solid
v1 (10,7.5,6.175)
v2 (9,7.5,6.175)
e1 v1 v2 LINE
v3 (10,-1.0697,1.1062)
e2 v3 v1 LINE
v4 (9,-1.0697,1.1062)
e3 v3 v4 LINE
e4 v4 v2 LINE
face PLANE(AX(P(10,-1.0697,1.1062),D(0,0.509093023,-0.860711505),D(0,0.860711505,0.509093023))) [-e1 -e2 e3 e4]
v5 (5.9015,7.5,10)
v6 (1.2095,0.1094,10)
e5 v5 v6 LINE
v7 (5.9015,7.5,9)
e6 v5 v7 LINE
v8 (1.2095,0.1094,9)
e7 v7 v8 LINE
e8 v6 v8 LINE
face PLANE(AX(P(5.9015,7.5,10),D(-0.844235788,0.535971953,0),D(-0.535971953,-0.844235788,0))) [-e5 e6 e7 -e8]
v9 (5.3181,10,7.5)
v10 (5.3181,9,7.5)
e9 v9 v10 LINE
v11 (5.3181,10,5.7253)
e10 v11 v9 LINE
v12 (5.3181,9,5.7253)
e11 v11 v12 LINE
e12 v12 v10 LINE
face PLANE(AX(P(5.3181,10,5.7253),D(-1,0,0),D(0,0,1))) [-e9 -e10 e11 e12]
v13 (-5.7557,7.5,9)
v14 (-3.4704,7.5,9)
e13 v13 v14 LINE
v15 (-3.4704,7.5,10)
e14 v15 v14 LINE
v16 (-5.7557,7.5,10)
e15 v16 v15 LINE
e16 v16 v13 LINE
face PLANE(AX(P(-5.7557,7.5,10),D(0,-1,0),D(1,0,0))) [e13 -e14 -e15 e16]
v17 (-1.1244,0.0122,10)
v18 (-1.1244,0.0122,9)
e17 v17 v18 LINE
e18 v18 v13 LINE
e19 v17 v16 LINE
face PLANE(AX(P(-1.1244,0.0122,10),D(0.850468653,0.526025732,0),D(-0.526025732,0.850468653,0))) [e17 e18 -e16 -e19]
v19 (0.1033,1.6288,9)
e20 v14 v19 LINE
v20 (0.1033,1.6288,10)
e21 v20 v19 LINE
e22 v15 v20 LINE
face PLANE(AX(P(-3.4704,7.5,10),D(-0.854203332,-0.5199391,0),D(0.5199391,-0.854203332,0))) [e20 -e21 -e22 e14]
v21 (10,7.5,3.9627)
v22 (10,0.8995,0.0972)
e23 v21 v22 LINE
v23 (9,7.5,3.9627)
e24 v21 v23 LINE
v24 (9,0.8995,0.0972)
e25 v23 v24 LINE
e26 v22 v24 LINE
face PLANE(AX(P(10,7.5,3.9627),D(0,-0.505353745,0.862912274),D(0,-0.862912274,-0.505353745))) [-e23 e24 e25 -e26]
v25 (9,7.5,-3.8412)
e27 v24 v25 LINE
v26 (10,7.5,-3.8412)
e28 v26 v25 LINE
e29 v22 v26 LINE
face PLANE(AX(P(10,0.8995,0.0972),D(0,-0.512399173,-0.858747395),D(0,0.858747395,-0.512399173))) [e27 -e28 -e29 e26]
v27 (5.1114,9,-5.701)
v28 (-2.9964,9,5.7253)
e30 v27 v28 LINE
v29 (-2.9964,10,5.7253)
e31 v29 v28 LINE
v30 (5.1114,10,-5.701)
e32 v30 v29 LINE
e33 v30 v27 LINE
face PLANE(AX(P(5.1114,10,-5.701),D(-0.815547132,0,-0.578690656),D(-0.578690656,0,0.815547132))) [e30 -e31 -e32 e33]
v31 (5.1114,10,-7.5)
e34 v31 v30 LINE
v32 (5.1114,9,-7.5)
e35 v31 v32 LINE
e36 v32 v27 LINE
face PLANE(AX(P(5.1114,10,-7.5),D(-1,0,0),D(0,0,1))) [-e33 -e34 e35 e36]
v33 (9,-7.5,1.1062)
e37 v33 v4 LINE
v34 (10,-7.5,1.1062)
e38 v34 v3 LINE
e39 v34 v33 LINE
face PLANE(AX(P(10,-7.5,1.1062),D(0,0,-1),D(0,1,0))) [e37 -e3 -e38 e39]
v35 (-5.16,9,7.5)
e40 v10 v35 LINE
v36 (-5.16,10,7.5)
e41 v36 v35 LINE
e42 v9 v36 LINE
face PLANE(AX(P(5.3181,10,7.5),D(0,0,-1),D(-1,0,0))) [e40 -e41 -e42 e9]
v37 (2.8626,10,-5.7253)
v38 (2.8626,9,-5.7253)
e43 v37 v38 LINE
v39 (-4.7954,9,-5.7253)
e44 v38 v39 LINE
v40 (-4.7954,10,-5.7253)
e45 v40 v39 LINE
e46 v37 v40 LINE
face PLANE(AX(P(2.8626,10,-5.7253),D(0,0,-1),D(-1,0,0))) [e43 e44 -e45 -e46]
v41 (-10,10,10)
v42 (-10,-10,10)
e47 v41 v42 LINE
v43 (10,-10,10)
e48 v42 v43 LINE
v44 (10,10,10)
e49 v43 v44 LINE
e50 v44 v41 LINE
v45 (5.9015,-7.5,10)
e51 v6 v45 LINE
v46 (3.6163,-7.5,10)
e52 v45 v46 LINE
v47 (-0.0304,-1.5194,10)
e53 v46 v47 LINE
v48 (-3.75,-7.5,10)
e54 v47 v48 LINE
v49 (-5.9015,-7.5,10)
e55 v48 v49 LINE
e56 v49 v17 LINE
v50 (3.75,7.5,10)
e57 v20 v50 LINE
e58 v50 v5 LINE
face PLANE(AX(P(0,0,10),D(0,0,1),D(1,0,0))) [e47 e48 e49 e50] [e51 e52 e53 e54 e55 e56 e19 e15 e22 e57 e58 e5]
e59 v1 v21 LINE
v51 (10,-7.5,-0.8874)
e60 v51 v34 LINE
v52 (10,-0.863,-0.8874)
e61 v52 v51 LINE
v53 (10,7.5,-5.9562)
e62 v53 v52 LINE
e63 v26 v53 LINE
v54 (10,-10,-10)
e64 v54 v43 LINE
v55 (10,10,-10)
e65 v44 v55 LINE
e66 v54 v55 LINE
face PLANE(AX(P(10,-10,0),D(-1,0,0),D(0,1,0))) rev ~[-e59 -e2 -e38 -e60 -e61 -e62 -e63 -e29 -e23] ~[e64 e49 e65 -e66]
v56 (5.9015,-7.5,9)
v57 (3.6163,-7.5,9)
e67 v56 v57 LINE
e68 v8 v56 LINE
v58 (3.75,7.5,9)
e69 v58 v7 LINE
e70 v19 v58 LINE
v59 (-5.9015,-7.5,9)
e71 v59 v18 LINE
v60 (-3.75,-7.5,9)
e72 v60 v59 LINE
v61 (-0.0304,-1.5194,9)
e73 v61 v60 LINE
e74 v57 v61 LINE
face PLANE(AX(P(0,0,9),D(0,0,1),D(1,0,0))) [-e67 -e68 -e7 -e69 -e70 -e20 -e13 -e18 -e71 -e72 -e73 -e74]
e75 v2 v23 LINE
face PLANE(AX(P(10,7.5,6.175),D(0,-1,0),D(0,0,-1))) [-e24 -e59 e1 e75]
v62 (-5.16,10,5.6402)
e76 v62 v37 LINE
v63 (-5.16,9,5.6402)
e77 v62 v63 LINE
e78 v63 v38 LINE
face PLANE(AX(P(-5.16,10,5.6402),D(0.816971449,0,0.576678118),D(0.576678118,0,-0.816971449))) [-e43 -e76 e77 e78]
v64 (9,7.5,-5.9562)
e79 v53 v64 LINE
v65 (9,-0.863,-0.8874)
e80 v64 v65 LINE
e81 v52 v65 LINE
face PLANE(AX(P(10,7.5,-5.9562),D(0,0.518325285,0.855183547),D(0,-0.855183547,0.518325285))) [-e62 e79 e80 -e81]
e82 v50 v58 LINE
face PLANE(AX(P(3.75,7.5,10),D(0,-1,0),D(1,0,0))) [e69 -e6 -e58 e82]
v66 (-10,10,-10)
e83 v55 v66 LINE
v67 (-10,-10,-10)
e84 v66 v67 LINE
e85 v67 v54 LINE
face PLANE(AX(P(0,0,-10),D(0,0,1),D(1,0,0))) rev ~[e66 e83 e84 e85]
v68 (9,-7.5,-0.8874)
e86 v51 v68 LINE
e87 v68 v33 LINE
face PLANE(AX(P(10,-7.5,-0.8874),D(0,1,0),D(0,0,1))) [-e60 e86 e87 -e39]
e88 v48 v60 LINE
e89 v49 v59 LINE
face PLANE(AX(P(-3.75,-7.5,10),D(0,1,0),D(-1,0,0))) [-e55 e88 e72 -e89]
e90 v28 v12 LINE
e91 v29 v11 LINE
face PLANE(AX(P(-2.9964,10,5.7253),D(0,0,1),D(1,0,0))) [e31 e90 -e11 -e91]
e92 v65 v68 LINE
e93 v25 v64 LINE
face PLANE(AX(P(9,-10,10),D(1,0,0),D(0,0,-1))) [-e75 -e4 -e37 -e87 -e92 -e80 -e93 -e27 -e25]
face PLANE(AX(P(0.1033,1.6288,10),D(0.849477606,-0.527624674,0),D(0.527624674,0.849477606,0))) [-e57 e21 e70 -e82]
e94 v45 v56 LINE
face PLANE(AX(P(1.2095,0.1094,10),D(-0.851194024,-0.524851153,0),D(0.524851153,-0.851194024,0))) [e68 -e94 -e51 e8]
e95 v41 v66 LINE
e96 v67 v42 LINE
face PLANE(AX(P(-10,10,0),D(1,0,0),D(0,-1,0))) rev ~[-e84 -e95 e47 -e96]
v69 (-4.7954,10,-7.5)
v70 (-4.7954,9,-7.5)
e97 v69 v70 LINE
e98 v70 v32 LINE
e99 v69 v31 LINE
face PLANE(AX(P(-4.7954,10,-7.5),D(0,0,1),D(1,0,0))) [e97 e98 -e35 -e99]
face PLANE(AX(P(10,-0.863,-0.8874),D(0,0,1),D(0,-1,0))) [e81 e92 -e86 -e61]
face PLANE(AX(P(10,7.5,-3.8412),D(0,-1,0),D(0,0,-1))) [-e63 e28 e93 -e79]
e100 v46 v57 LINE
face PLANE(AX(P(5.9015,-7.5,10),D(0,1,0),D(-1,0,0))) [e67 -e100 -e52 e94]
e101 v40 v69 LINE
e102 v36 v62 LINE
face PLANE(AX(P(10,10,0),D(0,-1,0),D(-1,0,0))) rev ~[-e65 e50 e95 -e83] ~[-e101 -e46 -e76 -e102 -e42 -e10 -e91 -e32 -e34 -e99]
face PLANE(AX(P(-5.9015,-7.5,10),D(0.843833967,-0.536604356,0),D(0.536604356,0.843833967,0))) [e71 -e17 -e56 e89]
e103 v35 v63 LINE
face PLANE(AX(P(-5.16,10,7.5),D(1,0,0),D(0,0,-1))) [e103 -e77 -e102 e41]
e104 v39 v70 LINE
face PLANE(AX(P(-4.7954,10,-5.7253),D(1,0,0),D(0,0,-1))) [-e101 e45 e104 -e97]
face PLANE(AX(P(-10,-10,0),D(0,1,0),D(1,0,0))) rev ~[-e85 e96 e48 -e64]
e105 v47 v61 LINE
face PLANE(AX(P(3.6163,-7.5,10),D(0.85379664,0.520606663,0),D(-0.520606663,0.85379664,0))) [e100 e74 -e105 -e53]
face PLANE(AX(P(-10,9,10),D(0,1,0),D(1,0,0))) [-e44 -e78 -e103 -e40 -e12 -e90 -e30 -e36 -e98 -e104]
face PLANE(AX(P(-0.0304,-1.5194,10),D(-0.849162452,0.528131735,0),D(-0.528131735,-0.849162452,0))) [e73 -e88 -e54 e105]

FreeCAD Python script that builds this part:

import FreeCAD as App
import Part
import Sketcher
Q = App.Units.Quantity


def add_polygon(sketch, points):
    """Adds a closed chain of lines whose ends are joined by coincident constraints."""
    first, n = sketch.GeometryCount, len(points)
    for a, b in zip(points, points[1:] + points[:1]):
        sketch.addGeometry(Part.LineSegment(App.Vector(*a, 0), App.Vector(*b, 0)), False)
    for i in range(n):
        sketch.addConstraint(Sketcher.Constraint("Coincident", first + i, 2, first + (i + 1) % n, 1))

doc = App.newDocument("Part")
body = doc.addObject("PartDesign::Body", "Body")

sketch1 = body.newObject("Sketcher::SketchObject", "Sketch")
sketch1.AttachmentSupport = (doc.getObject("XY_Plane"), [""])
sketch1.MapMode = "FlatFace"
add_polygon(sketch1, [(-10, 10), (-10, -10), (10, -10), (10, 10)])
sketch1.addConstraint([
    Sketcher.Constraint("Vertical", 0),
    Sketcher.Constraint("Horizontal", 1),
    Sketcher.Constraint("Vertical", 2),
    Sketcher.Constraint("Horizontal", 3),
    Sketcher.Constraint("Symmetric", 0, 2, 2, 2, -1, 1),
    Sketcher.Constraint("Equal", 3, 0),
    Sketcher.Constraint("DistanceX", 1, 1, 1, 2, Q("0.7874 in")),
])
pad1 = body.newObject("PartDesign::Pad", "Pad")
pad1.Profile = sketch1
pad1.Length = Q("0.7874016 in")
pad1.Midplane = True

sketch2 = body.newObject("Sketcher::SketchObject", "Sketch001")
sketch2.AttachmentSupport = (doc.getObject("XY_Plane"), [""])
sketch2.MapMode = "FlatFace"
sketch2.AttachmentOffset = App.Placement(App.Vector(0, 0, 0.3937008 * 25.4), App.Rotation())
add_polygon(sketch2, [(3.6163, -7.5), (5.9015, -7.5), (1.2095, 0.1094), (5.9015, 7.5), (3.75, 7.5), (0.1033, 1.6288), (-3.4704, 7.5), (-5.7557, 7.5), (-1.1244, 0.0122), (-5.9015, -7.5), (-3.75, -7.5), (-0.0304, -1.5194)])
sketch2.addConstraint([
    Sketcher.Constraint("Horizontal", 0),
    Sketcher.Constraint("Horizontal", 3),
    Sketcher.Constraint("Horizontal", 6),
    Sketcher.Constraint("Horizontal", 9),
    Sketcher.Constraint("Symmetric", 2, 2, 8, 2, -1, 1),
    Sketcher.Constraint("Symmetric", 0, 2, 8, 2, -2),
    Sketcher.Constraint("Horizontal", 3, 2, 5, 2),
    Sketcher.Constraint("Equal", 0, 6),
    Sketcher.Constraint("Equal", 3, 9),
    Sketcher.Constraint("Angle", 2, Q("57.5901 deg")),
    Sketcher.Constraint("Angle", 10, Q("58.1207 deg")),
    Sketcher.Constraint("DistanceX", 9, 2, 11, 2, Q("0.29 in")),
    Sketcher.Constraint("DistanceX", 3, 2, 3, 1, Q("0.0847 in")),
    Sketcher.Constraint("Distance", 4, Q("0.2721 in")),
    Sketcher.Constraint("Distance", 5, Q("0.2706 in")),
    Sketcher.Constraint("Distance", 8, Q("0.3505 in")),
    Sketcher.Constraint("DistanceX", 0, 1, 0, 2, 2.2852),
    Sketcher.Constraint("DistanceY", -1, 1, 1, 2, Q("0.0043 in")),
    Sketcher.Constraint("DistanceX", 6, 2, -1, 1, Q("0.2266 in")),
    Sketcher.Constraint("DistanceX", 10, 2, -1, 1, Q("0.0012 in")),
    Sketcher.Constraint("DistanceY", 0, 2, 4, 2, Q("0.3594 in")),
    Sketcher.Constraint("DistanceY", 7, 2, 5, 2, Q("0.2948 in")),
])
pocket1 = body.newObject("PartDesign::Pocket", "Pocket")
pocket1.Profile = sketch2
pocket1.Length = 1

sketch3 = body.newObject("Sketcher::SketchObject", "Sketch002")
sketch3.AttachmentSupport = (doc.getObject("YZ_Plane"), [""])
sketch3.MapMode = "FlatFace"
sketch3.AttachmentOffset = App.Placement(App.Vector(0, 0, 0.3937008 * 25.4), App.Rotation())
add_polygon(sketch3, [(-0.863, -0.8874), (7.5, -5.9562), (7.5, -3.8412), (0.8995, 0.0972), (7.5, 3.9627), (7.5, 6.175), (-1.0697, 1.1062), (-7.5, 1.1062), (-7.5, -0.8874)])
sketch3.addConstraint([
    Sketcher.Constraint("Vertical", 1),
    Sketcher.Constraint("Vertical", 4),
    Sketcher.Constraint("Horizontal", 6),
    Sketcher.Constraint("Vertical", 7),
    Sketcher.Constraint("Horizontal", 8),
    Sketcher.Constraint("Vertical", 1, 2, 3, 2),
    Sketcher.Constraint("Angle", 0, Q("-31.22 deg")),
    Sketcher.Constraint("Distance", 0, Q("0.385 in")),
    Sketcher.Constraint("Distance", 5, Q("0.392 in")),
    Sketcher.Constraint("DistanceX", 8, 1, 8, 2, Q("0.2613 in")),
    Sketcher.Constraint("DistanceY", 4, 1, 4, 2, Q("0.0871 in")),
    Sketcher.Constraint("DistanceY", 7, 2, 7, 1, Q("0.0785 in")),
    Sketcher.Constraint("DistanceY", -1, 1, 3, 2, Q("0.156 in")),
    Sketcher.Constraint("Distance", 2, Q("0.3026 in")),
    Sketcher.Constraint("DistanceX", 6, 2, 6, 1, 6.4303),
    Sketcher.Constraint("DistanceY", 1, 1, 1, 2, 2.115),
    Sketcher.Constraint("DistanceX", 6, 2, 2, 2, Q("0.3307 in")),
    Sketcher.Constraint("DistanceX", -1, 1, 0, 2, 7.5),
])
pocket2 = body.newObject("PartDesign::Pocket", "Pocket001")
pocket2.Profile = sketch3
pocket2.Length = 1

sketch4 = body.newObject("Sketcher::SketchObject", "Sketch003")
sketch4.AttachmentSupport = (doc.getObject("XZ_Plane"), [""])
sketch4.MapMode = "FlatFace"
sketch4.AttachmentOffset = App.Placement(App.Vector(0, 0, -0.3937008 * 25.4), App.Rotation())
add_polygon(sketch4, [(-5.16, 7.5), (5.3181, 7.5), (5.3181, 5.7253), (-2.9964, 5.7253), (5.1114, -5.701), (5.1114, -7.5), (-4.7954, -7.5), (-4.7954, -5.7253), (2.8626, -5.7253), (-5.16, 5.6402)])
sketch4.addConstraint([
    Sketcher.Constraint("Horizontal", 0),
    Sketcher.Constraint("Vertical", 1),
    Sketcher.Constraint("Horizontal", 2),
    Sketcher.Constraint("Vertical", 4),
    Sketcher.Constraint("Horizontal", 5),
    Sketcher.Constraint("Vertical", 6),
    Sketcher.Constraint("Horizontal", 7),
    Sketcher.Constraint("Vertical", 9),
    Sketcher.Constraint("Equal", 1, 6),
    Sketcher.Constraint("DistanceX", 7, 1, 7, 2, Q("0.3015 in")),
    Sketcher.Constraint("Distance", 3, Q("0.5516 in")),
    Sketcher.Constraint("Distance", 8, Q("0.5477 in")),
    Sketcher.Constraint("DistanceX", 0, 1, 0, 2, 10.478),
    Sketcher.Constraint("DistanceX", 2, 2, 2, 1, 8.3145),
    Sketcher.Constraint("DistanceX", 5, 2, 5, 1, 9.9068),
    Sketcher.Constraint("DistanceY", 1, 2, 1, 1, 1.7747),
    Sketcher.Constraint("DistanceY", 4, 2, 4, 1, 1.799),
    Sketcher.Constraint("DistanceY", -1, 1, 1, 2, Q("0.2254 in")),
    Sketcher.Constraint("DistanceX", 5, 2, -1, 1, Q("0.1888 in")),
    Sketcher.Constraint("DistanceY", 6, 2, -1, 1, Q("0.2254 in")),
])
pocket3 = body.newObject("PartDesign::Pocket", "Pocket002")
pocket3.Profile = sketch4
pocket3.Length = 1
pocket3.Reversed = True

doc.recompute()
